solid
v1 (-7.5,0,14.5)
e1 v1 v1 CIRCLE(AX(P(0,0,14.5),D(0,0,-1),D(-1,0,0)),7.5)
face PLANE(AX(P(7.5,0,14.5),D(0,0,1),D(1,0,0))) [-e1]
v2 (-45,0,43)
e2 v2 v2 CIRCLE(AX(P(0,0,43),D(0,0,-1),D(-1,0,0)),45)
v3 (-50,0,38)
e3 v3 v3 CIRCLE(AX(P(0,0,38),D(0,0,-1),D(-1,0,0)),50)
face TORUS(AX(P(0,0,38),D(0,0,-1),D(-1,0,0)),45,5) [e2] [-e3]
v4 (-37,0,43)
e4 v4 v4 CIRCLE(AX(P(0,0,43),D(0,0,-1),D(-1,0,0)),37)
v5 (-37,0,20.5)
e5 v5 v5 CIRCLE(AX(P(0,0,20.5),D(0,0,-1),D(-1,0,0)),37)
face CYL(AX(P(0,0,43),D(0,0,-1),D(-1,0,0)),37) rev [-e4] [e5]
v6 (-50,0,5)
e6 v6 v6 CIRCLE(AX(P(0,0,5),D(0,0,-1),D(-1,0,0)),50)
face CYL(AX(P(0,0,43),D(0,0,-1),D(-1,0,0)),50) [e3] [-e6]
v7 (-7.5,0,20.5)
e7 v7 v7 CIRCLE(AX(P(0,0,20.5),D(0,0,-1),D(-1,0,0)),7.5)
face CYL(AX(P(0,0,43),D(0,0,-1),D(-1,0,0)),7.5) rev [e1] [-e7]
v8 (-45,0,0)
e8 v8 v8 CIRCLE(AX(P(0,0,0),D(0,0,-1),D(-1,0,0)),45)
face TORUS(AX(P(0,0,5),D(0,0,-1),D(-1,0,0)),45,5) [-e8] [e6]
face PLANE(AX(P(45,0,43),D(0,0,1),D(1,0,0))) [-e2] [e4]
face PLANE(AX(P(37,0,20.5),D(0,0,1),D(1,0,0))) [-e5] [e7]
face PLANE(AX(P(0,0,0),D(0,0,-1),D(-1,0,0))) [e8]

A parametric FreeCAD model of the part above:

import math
import FreeCAD as App
import Part
import Sketcher
from FreeCAD import Vector
Q = App.Units.Quantity

doc = App.newDocument("Part")
params = doc.addObject("Spreadsheet::Sheet", "Params")
for row, (alias, value) in enumerate([
    ("sketch1_radius", "5 mm"),
    ("sketch1_width", "45 mm"),
    ("sketch1_width2", "8 mm"),
    ("sketch1_height", "33 mm"),
    ("sketch1_height2", "6 mm"),
    ("revolution_angle", "360 deg"),
], start=1):
    params.set(f"A{row}", alias)
    params.set(f"B{row}", "=" + value)
    params.setAlias(f"B{row}", alias)

body = doc.addObject("PartDesign::Body", "Body")

# Sketch on XZ plane
sketch1 = body.newObject("Sketcher::SketchObject", "Sketch")
sketch1.AttachmentSupport = (doc.getObject("XZ_Plane"), [""])
sketch1.MapMode = "FlatFace"
sketch1.addGeometry(Part.LineSegment(Vector(8, 14, 0), Vector(0, 14, 0)), False)
sketch1.addGeometry(Part.LineSegment(Vector(0, 14, 0), Vector(0, 0, 0)), False)
sketch1.addGeometry(Part.LineSegment(Vector(0, 0, 0), Vector(45, 0, 0)), False)
sketch1.addGeometry(Part.ArcOfCircle(Part.Circle(Vector(45, 5, 0), Vector(0, 0, 1), 5), math.radians(-90), math.radians(0)), False)
sketch1.addGeometry(Part.LineSegment(Vector(50, 5, 0), Vector(50, 38, 0)), False)
sketch1.addGeometry(Part.ArcOfCircle(Part.Circle(Vector(45, 38, 0), Vector(0, 0, 1), 5), math.radians(0), math.radians(90)), False)
sketch1.addGeometry(Part.LineSegment(Vector(45, 43, 0), Vector(37, 43, 0)), False)
sketch1.addGeometry(Part.LineSegment(Vector(37, 43, 0), Vector(37, 20, 0)), False)
sketch1.addGeometry(Part.LineSegment(Vector(37, 20, 0), Vector(8, 20, 0)), False)
sketch1.addGeometry(Part.LineSegment(Vector(8, 20, 0), Vector(8, 14, 0)), False)
sketch1.addConstraint(Sketcher.Constraint("Coincident", 0, 2, 1, 1))
sketch1.addConstraint(Sketcher.Constraint("Coincident", 1, 2, 2, 1))
sketch1.addConstraint(Sketcher.Constraint("Tangent", 2, 2, 3, 1))
sketch1.addConstraint(Sketcher.Constraint("Tangent", 3, 2, 4, 1))
sketch1.addConstraint(Sketcher.Constraint("Tangent", 4, 2, 5, 1))
sketch1.addConstraint(Sketcher.Constraint("Tangent", 5, 2, 6, 1))
sketch1.addConstraint(Sketcher.Constraint("Coincident", 6, 2, 7, 1))
sketch1.addConstraint(Sketcher.Constraint("Coincident", 7, 2, 8, 1))
sketch1.addConstraint(Sketcher.Constraint("Coincident", 8, 2, 9, 1))
sketch1.addConstraint(Sketcher.Constraint("Coincident", 9, 2, 0, 1))
sketch1.addConstraint(Sketcher.Constraint("Horizontal", 0))
sketch1.addConstraint(Sketcher.Constraint("Vertical", 1))
sketch1.addConstraint(Sketcher.Constraint("Horizontal", 2))
sketch1.addConstraint(Sketcher.Constraint("Vertical", 4))
sketch1.addConstraint(Sketcher.Constraint("Horizontal", 6))
sketch1.addConstraint(Sketcher.Constraint("Vertical", 7))
sketch1.addConstraint(Sketcher.Constraint("Horizontal", 8))
sketch1.addConstraint(Sketcher.Constraint("Vertical", 9))
sketch1.addConstraint(Sketcher.Constraint("Coincident", 1, 2, -1, 1))
sketch1.addConstraint(Sketcher.Constraint("Equal", 3, 5))
sketch1.addConstraint(Sketcher.Constraint("Radius", 3, Q("5 mm")))
sketch1.addConstraint(Sketcher.Constraint("DistanceX", 2, 1, 2, 2, Q("45 mm")))
sketch1.addConstraint(Sketcher.Constraint("DistanceX", 6, 2, 6, 1, Q("8 mm")))
sketch1.addConstraint(Sketcher.Constraint("DistanceY", 4, 1, 4, 2, Q("33 mm")))
sketch1.addConstraint(Sketcher.Constraint("DistanceY", 9, 2, 9, 1, Q("6 mm")))
sketch1.addConstraint(Sketcher.Constraint("DistanceX", 0, 2, 0, 1, Q("7.5 mm")))
sketch1.addConstraint(Sketcher.Constraint("DistanceY", 1, 2, 1, 1, Q("14.5 mm")))
sketch1.setExpression("Constraints[20]", "Params.sketch1_radius")
sketch1.setExpression("Constraints[21]", "Params.sketch1_width")
sketch1.setExpression("Constraints[22]", "Params.sketch1_width2")
sketch1.setExpression("Constraints[23]", "Params.sketch1_height")
sketch1.setExpression("Constraints[24]", "Params.sketch1_height2")
revolution = body.newObject("PartDesign::Revolution", "Revolution")
revolution.Profile = sketch1
revolution.ReferenceAxis = (sketch1, ["V_Axis"])
revolution.setExpression("Angle", "Params.revolution_angle")

doc.recompute()
